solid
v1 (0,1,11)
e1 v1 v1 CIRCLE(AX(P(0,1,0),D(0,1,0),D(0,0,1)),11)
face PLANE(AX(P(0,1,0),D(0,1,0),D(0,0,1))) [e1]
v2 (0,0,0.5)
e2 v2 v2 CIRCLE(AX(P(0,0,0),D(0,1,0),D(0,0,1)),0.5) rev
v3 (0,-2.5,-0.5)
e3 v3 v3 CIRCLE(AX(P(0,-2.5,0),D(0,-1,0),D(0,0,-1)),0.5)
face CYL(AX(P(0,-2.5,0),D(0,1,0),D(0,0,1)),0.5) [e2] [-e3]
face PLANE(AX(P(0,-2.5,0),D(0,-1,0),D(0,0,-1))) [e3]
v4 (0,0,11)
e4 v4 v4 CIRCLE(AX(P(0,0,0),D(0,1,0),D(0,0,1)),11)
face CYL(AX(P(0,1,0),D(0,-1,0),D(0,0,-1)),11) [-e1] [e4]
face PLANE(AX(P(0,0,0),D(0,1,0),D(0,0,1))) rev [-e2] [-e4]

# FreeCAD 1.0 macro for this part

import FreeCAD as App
import Part
import Sketcher

V = App.Vector

doc = App.newDocument("Part")
params = doc.addObject("Spreadsheet::Sheet", "Params")
for row, (alias, value) in enumerate([
    ("sketch1_diameter", "22 mm"),
    ("pad1_length", "1 mm"),
    ("sketch2_diameter", "1 mm"),
    ("pad2_length", "2.5 mm"),
], start=1):
    params.set(f"A{row}", alias)
    params.set(f"B{row}", "=" + value)
    params.setAlias(f"B{row}", alias)

body = doc.addObject("PartDesign::Body", "Body")

# Sketch on XZ plane
sketch1 = body.newObject("Sketcher::SketchObject", "Sketch")
sketch1.AttachmentSupport = (doc.getObject("XZ_Plane"), [""])
sketch1.MapMode = "FlatFace"
sketch1.addGeometry(Part.Circle(V(0, 0, 0), V(0, 0, 1), 11), False)
sketch1.addConstraint([
    Sketcher.Constraint("Coincident", 0, 3, -1, 1),
    Sketcher.Constraint("Diameter", 0, 22.0),
])
sketch1.setExpression("Constraints[1]", "Params.sketch1_diameter")
pad1 = body.newObject("PartDesign::Pad", "Pad")
pad1.Profile = sketch1
pad1.setExpression("Length", "Params.pad1_length")
pad1.Reversed = True

# Sketch on XZ plane
sketch2 = body.newObject("Sketcher::SketchObject", "Sketch001")
sketch2.AttachmentSupport = (doc.getObject("XZ_Plane"), [""])
sketch2.MapMode = "FlatFace"
sketch2.addGeometry(Part.Circle(V(0, 0, 0), V(0, 0, 1), 0.5), False)
sketch2.addConstraint([
    Sketcher.Constraint("Coincident", 0, 3, -1, 1),
    Sketcher.Constraint("Diameter", 0, 1.0),
])
sketch2.setExpression("Constraints[1]", "Params.sketch2_diameter")
pad2 = body.newObject("PartDesign::Pad", "Pad001")
pad2.Profile = sketch2
pad2.setExpression("Length", "Params.pad2_length")

doc.recompute()
